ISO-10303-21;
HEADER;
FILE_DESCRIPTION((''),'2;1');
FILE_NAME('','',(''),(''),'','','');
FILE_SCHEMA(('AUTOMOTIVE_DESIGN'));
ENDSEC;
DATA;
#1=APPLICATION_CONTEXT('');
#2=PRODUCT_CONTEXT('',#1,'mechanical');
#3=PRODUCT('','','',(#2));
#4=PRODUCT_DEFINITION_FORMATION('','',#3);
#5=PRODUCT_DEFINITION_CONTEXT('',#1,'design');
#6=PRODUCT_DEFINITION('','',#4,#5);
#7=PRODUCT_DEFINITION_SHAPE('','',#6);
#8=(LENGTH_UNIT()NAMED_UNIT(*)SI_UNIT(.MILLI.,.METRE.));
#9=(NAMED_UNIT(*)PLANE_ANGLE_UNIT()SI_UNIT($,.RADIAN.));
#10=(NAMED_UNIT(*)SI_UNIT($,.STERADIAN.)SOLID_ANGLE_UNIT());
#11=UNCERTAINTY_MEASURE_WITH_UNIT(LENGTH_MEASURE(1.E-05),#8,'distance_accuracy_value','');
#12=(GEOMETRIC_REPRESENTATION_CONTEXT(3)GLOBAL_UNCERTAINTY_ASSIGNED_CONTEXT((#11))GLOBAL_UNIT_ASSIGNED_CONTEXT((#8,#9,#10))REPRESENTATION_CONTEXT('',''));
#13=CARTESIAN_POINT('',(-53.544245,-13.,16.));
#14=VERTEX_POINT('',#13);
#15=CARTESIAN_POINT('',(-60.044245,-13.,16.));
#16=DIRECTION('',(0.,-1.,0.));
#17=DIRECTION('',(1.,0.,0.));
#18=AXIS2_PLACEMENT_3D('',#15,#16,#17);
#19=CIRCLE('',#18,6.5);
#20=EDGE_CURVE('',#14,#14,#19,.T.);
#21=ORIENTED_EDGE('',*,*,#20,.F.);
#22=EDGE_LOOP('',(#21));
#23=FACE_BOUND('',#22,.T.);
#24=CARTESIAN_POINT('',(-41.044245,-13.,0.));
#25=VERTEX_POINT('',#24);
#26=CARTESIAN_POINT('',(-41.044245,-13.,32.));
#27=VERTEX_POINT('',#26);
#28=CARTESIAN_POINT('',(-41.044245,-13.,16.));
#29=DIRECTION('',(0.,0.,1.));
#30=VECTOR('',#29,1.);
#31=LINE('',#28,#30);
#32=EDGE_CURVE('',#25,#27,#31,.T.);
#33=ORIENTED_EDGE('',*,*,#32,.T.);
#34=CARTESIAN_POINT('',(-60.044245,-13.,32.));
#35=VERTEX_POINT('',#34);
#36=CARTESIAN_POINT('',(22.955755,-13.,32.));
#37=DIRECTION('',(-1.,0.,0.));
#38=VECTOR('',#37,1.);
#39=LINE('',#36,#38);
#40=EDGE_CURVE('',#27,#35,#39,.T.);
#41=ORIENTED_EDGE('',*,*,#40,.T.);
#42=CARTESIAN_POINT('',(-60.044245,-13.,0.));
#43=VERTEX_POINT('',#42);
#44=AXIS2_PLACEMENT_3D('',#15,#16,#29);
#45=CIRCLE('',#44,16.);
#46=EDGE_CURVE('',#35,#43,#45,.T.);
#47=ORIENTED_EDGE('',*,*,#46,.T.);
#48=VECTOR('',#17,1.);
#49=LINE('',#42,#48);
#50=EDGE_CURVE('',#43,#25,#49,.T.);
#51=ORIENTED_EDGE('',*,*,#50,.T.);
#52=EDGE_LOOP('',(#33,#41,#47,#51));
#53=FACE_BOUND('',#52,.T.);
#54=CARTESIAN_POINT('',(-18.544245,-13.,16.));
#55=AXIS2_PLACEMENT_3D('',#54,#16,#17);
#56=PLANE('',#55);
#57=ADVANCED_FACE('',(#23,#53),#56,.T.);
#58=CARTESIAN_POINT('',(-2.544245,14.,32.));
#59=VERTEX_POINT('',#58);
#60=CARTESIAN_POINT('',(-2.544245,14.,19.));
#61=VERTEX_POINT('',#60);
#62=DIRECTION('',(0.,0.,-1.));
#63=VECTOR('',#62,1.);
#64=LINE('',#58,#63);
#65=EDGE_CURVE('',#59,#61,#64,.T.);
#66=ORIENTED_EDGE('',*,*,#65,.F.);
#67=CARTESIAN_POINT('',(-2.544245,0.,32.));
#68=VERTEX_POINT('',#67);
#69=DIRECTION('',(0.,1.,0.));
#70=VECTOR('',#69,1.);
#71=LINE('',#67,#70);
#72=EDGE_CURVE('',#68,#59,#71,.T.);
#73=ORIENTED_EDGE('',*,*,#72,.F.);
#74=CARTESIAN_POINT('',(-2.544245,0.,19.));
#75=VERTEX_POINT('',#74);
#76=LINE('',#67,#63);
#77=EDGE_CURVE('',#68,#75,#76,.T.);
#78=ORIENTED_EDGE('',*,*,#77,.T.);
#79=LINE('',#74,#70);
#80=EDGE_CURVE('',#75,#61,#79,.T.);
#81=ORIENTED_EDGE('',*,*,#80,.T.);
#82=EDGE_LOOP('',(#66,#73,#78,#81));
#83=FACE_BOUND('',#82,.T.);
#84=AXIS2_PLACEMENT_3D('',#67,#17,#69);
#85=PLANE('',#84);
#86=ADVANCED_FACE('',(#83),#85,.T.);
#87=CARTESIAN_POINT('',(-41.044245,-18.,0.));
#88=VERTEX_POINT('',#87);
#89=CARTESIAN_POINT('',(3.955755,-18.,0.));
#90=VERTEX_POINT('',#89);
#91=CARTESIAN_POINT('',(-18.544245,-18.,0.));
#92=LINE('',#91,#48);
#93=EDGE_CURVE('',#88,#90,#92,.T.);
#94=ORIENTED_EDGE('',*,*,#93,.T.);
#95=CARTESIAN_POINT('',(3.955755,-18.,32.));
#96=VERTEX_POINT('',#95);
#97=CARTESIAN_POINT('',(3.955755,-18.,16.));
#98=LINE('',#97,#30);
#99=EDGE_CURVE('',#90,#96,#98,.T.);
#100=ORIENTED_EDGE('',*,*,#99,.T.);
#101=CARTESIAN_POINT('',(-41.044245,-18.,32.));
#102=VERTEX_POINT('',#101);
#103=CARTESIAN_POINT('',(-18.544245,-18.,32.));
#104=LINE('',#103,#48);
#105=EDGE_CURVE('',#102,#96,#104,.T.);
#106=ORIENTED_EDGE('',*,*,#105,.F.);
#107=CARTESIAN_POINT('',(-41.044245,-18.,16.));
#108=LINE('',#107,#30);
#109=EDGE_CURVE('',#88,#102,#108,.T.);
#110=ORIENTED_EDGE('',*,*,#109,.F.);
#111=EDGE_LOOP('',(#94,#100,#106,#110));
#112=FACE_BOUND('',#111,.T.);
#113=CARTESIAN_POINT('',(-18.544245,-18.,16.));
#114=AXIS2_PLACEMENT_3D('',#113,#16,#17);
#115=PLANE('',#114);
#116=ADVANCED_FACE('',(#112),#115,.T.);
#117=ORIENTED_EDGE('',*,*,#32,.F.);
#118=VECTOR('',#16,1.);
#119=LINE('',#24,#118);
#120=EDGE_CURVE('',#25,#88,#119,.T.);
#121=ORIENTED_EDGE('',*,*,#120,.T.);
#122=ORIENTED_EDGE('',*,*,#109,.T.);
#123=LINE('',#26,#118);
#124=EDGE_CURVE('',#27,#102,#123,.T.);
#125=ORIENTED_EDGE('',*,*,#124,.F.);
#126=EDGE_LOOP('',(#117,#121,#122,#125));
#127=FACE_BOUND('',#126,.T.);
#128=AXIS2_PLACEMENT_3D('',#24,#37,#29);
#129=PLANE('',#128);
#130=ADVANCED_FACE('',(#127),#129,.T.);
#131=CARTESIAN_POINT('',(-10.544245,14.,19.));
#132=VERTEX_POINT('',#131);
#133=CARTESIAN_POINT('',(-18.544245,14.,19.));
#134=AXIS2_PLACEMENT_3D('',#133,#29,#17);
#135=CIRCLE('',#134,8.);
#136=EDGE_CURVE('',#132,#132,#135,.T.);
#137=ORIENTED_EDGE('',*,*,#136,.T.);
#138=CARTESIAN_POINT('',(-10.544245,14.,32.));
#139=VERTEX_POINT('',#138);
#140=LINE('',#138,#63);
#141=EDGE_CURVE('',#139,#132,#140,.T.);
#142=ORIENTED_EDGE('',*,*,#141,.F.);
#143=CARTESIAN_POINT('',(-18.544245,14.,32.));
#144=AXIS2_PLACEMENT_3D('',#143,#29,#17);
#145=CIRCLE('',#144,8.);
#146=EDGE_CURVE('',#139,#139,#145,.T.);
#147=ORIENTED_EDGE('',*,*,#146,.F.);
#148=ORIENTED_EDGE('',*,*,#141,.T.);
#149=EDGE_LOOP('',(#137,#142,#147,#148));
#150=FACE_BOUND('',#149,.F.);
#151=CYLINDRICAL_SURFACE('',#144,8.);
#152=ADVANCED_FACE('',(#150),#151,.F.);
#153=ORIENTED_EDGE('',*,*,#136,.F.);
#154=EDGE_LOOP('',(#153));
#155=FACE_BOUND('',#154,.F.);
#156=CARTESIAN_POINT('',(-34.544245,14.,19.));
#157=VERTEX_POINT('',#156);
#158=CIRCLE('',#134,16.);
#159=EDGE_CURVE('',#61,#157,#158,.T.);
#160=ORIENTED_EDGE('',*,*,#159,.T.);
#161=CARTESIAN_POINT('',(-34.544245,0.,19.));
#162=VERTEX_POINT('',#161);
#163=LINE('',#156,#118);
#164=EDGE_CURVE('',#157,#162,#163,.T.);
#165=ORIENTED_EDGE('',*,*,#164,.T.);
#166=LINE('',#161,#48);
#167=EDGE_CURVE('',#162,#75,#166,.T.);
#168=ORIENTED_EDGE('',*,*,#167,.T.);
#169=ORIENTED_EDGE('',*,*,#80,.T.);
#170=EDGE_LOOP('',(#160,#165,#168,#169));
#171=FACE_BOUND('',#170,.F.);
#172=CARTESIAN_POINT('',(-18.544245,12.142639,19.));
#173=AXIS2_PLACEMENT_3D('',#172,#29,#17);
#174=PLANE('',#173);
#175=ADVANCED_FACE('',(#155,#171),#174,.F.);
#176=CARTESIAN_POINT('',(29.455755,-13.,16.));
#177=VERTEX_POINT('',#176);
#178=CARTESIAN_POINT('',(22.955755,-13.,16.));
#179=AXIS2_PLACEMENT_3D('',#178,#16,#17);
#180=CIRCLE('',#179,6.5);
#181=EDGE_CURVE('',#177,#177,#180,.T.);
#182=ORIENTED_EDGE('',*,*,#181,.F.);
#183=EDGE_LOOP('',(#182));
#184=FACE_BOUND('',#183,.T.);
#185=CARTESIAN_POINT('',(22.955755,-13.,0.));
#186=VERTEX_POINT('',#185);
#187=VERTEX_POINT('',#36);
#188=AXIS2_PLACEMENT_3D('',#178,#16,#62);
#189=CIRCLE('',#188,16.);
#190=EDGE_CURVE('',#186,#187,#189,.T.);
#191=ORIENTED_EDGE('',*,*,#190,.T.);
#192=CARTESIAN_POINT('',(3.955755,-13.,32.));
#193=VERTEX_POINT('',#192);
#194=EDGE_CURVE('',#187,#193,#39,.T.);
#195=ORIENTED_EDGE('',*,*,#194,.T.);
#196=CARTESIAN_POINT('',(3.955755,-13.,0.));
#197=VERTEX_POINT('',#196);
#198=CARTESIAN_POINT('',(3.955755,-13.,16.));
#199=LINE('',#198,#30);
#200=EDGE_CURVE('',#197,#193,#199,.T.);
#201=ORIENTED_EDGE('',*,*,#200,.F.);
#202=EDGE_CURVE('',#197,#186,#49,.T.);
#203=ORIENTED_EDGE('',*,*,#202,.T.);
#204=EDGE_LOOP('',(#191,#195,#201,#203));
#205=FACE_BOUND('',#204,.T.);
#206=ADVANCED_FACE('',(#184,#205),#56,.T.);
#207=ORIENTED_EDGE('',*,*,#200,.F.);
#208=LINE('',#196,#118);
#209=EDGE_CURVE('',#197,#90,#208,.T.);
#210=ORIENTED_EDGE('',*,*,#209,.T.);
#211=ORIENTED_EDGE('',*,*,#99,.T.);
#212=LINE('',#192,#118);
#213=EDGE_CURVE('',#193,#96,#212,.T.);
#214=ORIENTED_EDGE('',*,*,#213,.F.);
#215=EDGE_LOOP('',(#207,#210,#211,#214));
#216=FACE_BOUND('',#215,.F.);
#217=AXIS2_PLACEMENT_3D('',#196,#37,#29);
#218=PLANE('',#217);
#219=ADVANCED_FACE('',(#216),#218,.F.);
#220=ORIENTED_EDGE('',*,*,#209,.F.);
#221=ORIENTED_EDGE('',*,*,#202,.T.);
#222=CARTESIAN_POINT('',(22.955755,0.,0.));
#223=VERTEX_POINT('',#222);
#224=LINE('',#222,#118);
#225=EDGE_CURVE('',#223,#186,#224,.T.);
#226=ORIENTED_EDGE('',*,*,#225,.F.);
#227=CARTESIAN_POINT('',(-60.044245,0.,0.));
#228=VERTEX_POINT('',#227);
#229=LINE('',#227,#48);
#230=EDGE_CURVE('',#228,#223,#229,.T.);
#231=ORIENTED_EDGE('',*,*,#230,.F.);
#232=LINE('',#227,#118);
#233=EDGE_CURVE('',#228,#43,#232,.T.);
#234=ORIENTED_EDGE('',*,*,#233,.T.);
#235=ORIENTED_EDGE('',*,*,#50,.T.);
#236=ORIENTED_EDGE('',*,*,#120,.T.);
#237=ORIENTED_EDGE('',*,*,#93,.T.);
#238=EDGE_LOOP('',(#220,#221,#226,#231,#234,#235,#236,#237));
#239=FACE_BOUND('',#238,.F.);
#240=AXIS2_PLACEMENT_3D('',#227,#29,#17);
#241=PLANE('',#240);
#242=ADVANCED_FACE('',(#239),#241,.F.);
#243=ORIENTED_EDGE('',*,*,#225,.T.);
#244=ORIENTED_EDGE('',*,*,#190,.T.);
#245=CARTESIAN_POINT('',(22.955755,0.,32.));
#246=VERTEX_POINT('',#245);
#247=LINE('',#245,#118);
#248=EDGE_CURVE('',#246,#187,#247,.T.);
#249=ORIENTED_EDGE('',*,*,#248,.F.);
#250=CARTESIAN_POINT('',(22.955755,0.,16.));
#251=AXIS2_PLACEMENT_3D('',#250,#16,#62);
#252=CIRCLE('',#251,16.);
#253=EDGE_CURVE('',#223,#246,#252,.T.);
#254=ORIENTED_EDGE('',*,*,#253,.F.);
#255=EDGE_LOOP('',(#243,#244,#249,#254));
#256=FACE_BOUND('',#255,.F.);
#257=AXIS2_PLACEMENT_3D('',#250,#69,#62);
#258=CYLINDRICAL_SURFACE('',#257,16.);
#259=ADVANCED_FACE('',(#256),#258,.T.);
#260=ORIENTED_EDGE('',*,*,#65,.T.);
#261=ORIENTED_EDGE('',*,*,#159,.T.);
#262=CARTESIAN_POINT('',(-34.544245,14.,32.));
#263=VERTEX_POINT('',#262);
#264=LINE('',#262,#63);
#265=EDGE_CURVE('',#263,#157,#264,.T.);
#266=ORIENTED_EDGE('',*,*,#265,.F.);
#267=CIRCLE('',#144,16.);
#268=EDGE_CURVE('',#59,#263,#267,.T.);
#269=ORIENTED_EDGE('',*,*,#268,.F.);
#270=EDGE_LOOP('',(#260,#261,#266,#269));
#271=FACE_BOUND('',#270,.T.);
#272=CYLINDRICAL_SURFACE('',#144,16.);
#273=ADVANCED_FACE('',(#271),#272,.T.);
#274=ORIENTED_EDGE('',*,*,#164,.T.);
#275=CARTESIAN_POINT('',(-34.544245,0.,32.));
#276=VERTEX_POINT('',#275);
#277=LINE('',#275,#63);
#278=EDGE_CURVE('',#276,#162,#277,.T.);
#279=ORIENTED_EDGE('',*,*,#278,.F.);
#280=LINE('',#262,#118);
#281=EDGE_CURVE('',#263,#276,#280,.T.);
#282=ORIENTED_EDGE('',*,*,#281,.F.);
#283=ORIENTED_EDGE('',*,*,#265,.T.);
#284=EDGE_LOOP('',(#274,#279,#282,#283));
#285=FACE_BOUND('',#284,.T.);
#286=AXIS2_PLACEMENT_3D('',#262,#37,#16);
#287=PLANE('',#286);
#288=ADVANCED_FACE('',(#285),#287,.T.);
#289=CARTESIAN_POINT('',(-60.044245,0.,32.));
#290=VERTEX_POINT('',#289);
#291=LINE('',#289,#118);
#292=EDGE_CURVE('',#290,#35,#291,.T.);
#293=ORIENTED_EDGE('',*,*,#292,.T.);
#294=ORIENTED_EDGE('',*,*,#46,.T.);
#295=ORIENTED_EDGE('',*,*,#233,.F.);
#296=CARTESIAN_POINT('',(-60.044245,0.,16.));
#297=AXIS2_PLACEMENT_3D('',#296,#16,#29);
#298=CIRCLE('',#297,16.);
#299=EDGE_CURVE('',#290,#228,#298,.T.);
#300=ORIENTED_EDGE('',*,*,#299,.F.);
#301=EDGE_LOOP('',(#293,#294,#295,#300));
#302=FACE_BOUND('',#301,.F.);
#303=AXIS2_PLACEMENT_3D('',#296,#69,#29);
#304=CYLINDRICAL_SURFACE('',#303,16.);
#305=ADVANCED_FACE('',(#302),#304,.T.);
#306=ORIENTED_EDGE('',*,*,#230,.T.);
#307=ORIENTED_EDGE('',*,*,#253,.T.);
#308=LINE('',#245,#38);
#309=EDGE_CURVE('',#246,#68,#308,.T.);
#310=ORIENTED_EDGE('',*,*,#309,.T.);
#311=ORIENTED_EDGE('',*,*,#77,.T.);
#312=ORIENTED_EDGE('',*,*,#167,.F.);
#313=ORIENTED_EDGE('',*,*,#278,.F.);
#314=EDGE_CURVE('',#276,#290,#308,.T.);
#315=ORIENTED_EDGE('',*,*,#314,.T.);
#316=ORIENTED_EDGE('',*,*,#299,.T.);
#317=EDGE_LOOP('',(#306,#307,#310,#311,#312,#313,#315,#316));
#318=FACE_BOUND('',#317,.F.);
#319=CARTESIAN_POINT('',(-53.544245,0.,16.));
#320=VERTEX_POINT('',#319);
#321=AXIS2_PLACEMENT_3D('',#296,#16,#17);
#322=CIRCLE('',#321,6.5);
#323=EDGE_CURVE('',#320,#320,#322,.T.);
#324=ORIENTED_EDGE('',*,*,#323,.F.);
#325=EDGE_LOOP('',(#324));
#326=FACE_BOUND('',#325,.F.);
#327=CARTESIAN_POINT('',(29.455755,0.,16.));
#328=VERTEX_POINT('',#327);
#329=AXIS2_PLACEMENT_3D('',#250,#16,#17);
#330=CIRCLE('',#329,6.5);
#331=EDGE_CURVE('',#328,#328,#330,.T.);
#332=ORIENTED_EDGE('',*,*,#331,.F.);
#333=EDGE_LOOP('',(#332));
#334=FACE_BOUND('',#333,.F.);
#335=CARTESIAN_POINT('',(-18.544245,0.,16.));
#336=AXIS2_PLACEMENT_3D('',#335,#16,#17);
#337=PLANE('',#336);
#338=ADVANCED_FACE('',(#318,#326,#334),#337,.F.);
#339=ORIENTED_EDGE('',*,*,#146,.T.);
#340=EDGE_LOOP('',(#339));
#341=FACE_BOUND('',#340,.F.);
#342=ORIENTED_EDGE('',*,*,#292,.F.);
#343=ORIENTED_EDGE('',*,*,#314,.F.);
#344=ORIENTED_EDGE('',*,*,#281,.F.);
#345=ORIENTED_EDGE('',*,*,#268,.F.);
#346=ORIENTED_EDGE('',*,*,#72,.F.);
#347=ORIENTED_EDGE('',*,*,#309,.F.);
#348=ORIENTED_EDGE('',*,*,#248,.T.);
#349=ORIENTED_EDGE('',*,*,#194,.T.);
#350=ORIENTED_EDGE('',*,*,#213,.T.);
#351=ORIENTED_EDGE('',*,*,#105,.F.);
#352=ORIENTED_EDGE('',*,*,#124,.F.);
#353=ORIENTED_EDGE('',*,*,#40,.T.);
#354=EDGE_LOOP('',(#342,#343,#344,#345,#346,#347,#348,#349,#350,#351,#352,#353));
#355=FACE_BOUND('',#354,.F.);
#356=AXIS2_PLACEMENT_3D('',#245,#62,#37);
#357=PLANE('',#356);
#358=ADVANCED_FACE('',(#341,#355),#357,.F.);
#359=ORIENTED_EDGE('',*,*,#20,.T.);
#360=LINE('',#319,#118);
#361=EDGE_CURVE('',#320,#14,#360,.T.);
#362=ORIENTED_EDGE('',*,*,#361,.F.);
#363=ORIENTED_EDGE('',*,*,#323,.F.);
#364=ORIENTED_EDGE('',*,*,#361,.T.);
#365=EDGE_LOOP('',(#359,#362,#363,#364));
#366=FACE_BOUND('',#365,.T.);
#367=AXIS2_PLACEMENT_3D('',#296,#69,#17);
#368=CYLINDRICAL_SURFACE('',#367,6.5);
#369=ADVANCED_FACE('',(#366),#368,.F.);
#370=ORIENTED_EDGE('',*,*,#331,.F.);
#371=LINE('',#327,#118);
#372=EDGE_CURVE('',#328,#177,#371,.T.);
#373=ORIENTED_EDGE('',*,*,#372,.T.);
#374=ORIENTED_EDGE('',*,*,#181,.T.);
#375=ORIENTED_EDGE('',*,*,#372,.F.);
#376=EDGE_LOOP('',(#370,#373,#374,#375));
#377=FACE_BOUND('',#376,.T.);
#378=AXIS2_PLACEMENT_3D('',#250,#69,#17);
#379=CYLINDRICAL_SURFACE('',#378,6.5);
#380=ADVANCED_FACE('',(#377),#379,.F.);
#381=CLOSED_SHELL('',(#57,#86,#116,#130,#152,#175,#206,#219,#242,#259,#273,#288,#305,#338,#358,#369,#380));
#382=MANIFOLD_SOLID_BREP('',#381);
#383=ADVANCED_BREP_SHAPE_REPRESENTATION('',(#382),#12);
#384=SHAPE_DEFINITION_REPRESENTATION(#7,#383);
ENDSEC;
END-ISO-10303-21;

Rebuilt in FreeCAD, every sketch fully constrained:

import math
import FreeCAD as App
import Part
import Sketcher
Q = App.Units.Quantity


def add_polygon(sketch, points):
    """Adds a closed chain of lines whose ends are joined by coincident constraints."""
    first, n = sketch.GeometryCount, len(points)
    for a, b in zip(points, points[1:] + points[:1]):
        sketch.addGeometry(Part.LineSegment(App.Vector(*a, 0), App.Vector(*b, 0)), False)
    for i in range(n):
        sketch.addConstraint(Sketcher.Constraint("Coincident", first + i, 2, first + (i + 1) % n, 1))

doc = App.newDocument("Part")
params = doc.addObject("Spreadsheet::Sheet", "Params")
for row, (alias, value) in enumerate([
    ("sketch1_diameter", "13 mm"),
    ("sketch1_radius", "16 mm"),
    ("sketch1_width", "83 mm"),
    ("pad1_length", "13 mm"),
    ("sketch2_width", "45 mm"),
    ("sketch2_height", "32 mm"),
    ("pad2_length", "5 mm"),
    ("sketch3_diameter", "16 mm"),
    ("sketch3_radius", "16 mm"),
    ("sketch3_height", "14 mm"),
    ("pad3_length", "13 mm"),
], start=1):
    params.set(f"A{row}", alias)
    params.set(f"B{row}", "=" + value)
    params.setAlias(f"B{row}", alias)

body = doc.addObject("PartDesign::Body", "Body")

# Sketch on XZ plane
sketch1 = body.newObject("Sketcher::SketchObject", "Sketch")
sketch1.AttachmentSupport = (doc.getObject("XZ_Plane"), [""])
sketch1.MapMode = "FlatFace"
sketch1.addGeometry(Part.ArcOfCircle(Part.Circle(App.Vector(-60, 16, 0), App.Vector(0, 0, 1), 16), math.radians(90), math.radians(270)), False)
sketch1.addGeometry(Part.LineSegment(App.Vector(-60, 0, 0), App.Vector(23, 0, 0)), False)
sketch1.addGeometry(Part.ArcOfCircle(Part.Circle(App.Vector(23, 16, 0), App.Vector(0, 0, 1), 16), math.radians(-90), math.radians(90)), False)
sketch1.addGeometry(Part.LineSegment(App.Vector(23, 32, 0), App.Vector(-60, 32, 0)), False)
sketch1.addGeometry(Part.Circle(App.Vector(-60, 16, 0), App.Vector(0, 0, 1), 6), False)
sketch1.addGeometry(Part.Circle(App.Vector(23, 16, 0), App.Vector(0, 0, 1), 6), False)
sketch1.addConstraint(Sketcher.Constraint("Tangent", 0, 2, 1, 1))
sketch1.addConstraint(Sketcher.Constraint("Tangent", 1, 2, 2, 1))
sketch1.addConstraint(Sketcher.Constraint("Tangent", 2, 2, 3, 1))
sketch1.addConstraint(Sketcher.Constraint("Tangent", 3, 2, 0, 1))
sketch1.addConstraint(Sketcher.Constraint("Horizontal", 1))
sketch1.addConstraint(Sketcher.Constraint("Horizontal", 3))
sketch1.addConstraint(Sketcher.Constraint("Coincident", 4, 3, 0, 3))
sketch1.addConstraint(Sketcher.Constraint("Coincident", 5, 3, 2, 3))
sketch1.addConstraint(Sketcher.Constraint("Equal", 4, 5))
sketch1.addConstraint(Sketcher.Constraint("PointOnObject", 0, 2, -1))
sketch1.addConstraint(Sketcher.Constraint("Diameter", 4, Q("13 mm")))
sketch1.addConstraint(Sketcher.Constraint("Radius", 0, Q("16 mm")))
sketch1.addConstraint(Sketcher.Constraint("DistanceX", 1, 1, 1, 2, Q("83 mm")))
sketch1.addConstraint(Sketcher.Constraint("DistanceX", 0, 3, -1, 1, Q("60.044245 mm")))
sketch1.setExpression("Constraints[10]", "Params.sketch1_diameter")
sketch1.setExpression("Constraints[11]", "Params.sketch1_radius")
sketch1.setExpression("Constraints[12]", "Params.sketch1_width")
pad1 = body.newObject("PartDesign::Pad", "Pad")
pad1.Profile = sketch1
pad1.setExpression("Length", "Params.pad1_length")

# Sketch on XZ plane
sketch2 = body.newObject("Sketcher::SketchObject", "Sketch001")
sketch2.AttachmentSupport = (doc.getObject("XZ_Plane"), [""])
sketch2.MapMode = "FlatFace"
sketch2.AttachmentOffset = App.Placement(App.Vector(0, 0, 13), App.Rotation())
add_polygon(sketch2, [(-41, 32), (-41, 0), (4, 0), (4, 32)])  # lines 0-3
sketch2.addConstraint(Sketcher.Constraint("Vertical", 0))
sketch2.addConstraint(Sketcher.Constraint("Horizontal", 1))
sketch2.addConstraint(Sketcher.Constraint("Vertical", 2))
sketch2.addConstraint(Sketcher.Constraint("Horizontal", 3))
sketch2.addConstraint(Sketcher.Constraint("PointOnObject", 0, 2, -1))
sketch2.addConstraint(Sketcher.Constraint("DistanceX", 1, 1, 1, 2, Q("45 mm")))
sketch2.addConstraint(Sketcher.Constraint("DistanceY", 0, 2, 0, 1, Q("32 mm")))
sketch2.addConstraint(Sketcher.Constraint("DistanceX", 0, 2, -1, 1, Q("41.044245 mm")))
sketch2.setExpression("Constraints[9]", "Params.sketch2_width")
sketch2.setExpression("Constraints[10]", "Params.sketch2_height")
pad2 = body.newObject("PartDesign::Pad", "Pad001")
pad2.Profile = sketch2
pad2.setExpression("Length", "Params.pad2_length")

# Sketch on XY plane
sketch3 = body.newObject("Sketcher::SketchObject", "Sketch002")
sketch3.AttachmentSupport = (doc.getObject("XY_Plane"), [""])
sketch3.MapMode = "FlatFace"
sketch3.AttachmentOffset = App.Placement(App.Vector(0, 0, 32), App.Rotation())
sketch3.addGeometry(Part.LineSegment(App.Vector(-35, 14, 0), App.Vector(-35, 0, 0)), False)
sketch3.addGeometry(Part.LineSegment(App.Vector(-35, 0, 0), App.Vector(-3, 0, 0)), False)
sketch3.addGeometry(Part.LineSegment(App.Vector(-3, 0, 0), App.Vector(-3, 14, 0)), False)
sketch3.addGeometry(Part.ArcOfCircle(Part.Circle(App.Vector(-19, 14, 0), App.Vector(0, 0, 1), 16), math.radians(0), math.radians(180)), False)
sketch3.addGeometry(Part.Circle(App.Vector(-19, 14, 0), App.Vector(0, 0, 1), 8), False)
sketch3.addConstraint(Sketcher.Constraint("Coincident", 0, 2, 1, 1))
sketch3.addConstraint(Sketcher.Constraint("Coincident", 1, 2, 2, 1))
sketch3.addConstraint(Sketcher.Constraint("Tangent", 2, 2, 3, 1))
sketch3.addConstraint(Sketcher.Constraint("Tangent", 3, 2, 0, 1))
sketch3.addConstraint(Sketcher.Constraint("Vertical", 0))
sketch3.addConstraint(Sketcher.Constraint("Horizontal", 1))
sketch3.addConstraint(Sketcher.Constraint("Vertical", 2))
sketch3.addConstraint(Sketcher.Constraint("Coincident", 4, 3, 3, 3))
sketch3.addConstraint(Sketcher.Constraint("PointOnObject", 0, 2, -1))
sketch3.addConstraint(Sketcher.Constraint("Diameter", 4, Q("16 mm")))
sketch3.addConstraint(Sketcher.Constraint("Radius", 3, Q("16 mm")))
sketch3.addConstraint(Sketcher.Constraint("DistanceY", 0, 2, 0, 1, Q("14 mm")))
sketch3.addConstraint(Sketcher.Constraint("DistanceX", 3, 3, -1, 1, Q("18.544245 mm")))
sketch3.setExpression("Constraints[9]", "Params.sketch3_diameter")
sketch3.setExpression("Constraints[10]", "Params.sketch3_radius")
sketch3.setExpression("Constraints[11]", "Params.sketch3_height")
pad3 = body.newObject("PartDesign::Pad", "Pad002")
pad3.Profile = sketch3
pad3.setExpression("Length", "Params.pad3_length")
pad3.Reversed = True

doc.recompute()
